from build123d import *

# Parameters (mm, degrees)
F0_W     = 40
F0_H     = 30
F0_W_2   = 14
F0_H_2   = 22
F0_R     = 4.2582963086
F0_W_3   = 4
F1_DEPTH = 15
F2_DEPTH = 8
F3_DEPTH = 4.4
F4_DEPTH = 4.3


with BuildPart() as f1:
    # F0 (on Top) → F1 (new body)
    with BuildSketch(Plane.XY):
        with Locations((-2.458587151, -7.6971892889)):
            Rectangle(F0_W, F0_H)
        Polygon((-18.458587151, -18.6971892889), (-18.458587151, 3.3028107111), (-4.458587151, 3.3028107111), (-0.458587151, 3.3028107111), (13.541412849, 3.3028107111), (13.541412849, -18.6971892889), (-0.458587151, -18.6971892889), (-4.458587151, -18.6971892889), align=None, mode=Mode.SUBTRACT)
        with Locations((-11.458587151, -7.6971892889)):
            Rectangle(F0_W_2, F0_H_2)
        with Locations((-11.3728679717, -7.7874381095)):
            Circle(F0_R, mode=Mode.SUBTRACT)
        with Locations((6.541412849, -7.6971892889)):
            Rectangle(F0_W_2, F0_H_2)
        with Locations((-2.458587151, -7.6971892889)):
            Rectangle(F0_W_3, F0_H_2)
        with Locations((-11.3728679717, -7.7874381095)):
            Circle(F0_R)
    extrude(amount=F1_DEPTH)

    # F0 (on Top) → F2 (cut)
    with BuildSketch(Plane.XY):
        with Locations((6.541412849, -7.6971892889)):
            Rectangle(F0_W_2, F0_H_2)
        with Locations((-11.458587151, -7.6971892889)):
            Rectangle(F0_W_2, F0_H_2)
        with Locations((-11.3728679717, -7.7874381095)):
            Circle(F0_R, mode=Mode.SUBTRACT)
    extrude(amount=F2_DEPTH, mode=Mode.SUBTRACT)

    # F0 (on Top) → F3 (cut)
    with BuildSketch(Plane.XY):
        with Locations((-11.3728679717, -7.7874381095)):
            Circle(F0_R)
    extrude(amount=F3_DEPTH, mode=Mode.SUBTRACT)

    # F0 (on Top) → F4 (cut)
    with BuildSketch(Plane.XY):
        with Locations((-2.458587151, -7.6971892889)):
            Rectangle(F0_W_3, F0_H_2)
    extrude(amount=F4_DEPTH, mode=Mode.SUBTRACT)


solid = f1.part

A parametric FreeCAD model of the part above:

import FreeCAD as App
import Part
import Sketcher

doc = App.newDocument("Part")
body = doc.addObject("PartDesign::Body", "Body")

sketch1 = body.newObject("Sketcher::SketchObject", "Sketch")
sketch1.AttachmentSupport = (doc.getObject("XY_Plane"), [""])
sketch1.MapMode = "FlatFace"
sketch1.addGeometry(Part.LineSegment(App.Vector(-22.458587, 7.302811, 0), App.Vector(-22.458587, -22.697189, 0)), False)
sketch1.addGeometry(Part.LineSegment(App.Vector(-22.458587, -22.697189, 0), App.Vector(17.541413, -22.697189, 0)), False)
sketch1.addGeometry(Part.LineSegment(App.Vector(17.541413, -22.697189, 0), App.Vector(17.541413, 7.302811, 0)), False)
sketch1.addGeometry(Part.LineSegment(App.Vector(17.541413, 7.302811, 0), App.Vector(-22.458587, 7.302811, 0)), False)
sketch1.addConstraint(Sketcher.Constraint("Coincident", 0, 2, 1, 1))
sketch1.addConstraint(Sketcher.Constraint("Coincident", 1, 2, 2, 1))
sketch1.addConstraint(Sketcher.Constraint("Coincident", 2, 2, 3, 1))
sketch1.addConstraint(Sketcher.Constraint("Coincident", 3, 2, 0, 1))
sketch1.addConstraint(Sketcher.Constraint("Vertical", 0))
sketch1.addConstraint(Sketcher.Constraint("Horizontal", 1))
sketch1.addConstraint(Sketcher.Constraint("Vertical", 2))
sketch1.addConstraint(Sketcher.Constraint("Horizontal", 3))
sketch1.addConstraint(Sketcher.Constraint("DistanceX", 1, 1, 1, 2, 40.0))
sketch1.addConstraint(Sketcher.Constraint("DistanceY", 0, 2, 0, 1, 30.0))
sketch1.addConstraint(Sketcher.Constraint("DistanceY", 0, 2, -1, 1, 22.697189))
sketch1.addConstraint(Sketcher.Constraint("DistanceX", 0, 2, -1, 1, 22.458587))
pad1 = body.newObject("PartDesign::Pad", "Pad")
pad1.Profile = sketch1
pad1.Length = 15

sketch2 = body.newObject("Sketcher::SketchObject", "Sketch001")
sketch2.AttachmentSupport = (doc.getObject("XY_Plane"), [""])
sketch2.MapMode = "FlatFace"
sketch2.addGeometry(Part.LineSegment(App.Vector(-0.458587, 3.302811, 0), App.Vector(-0.458587, -18.697189, 0)), False)
sketch2.addGeometry(Part.LineSegment(App.Vector(-0.458587, -18.697189, 0), App.Vector(13.541413, -18.697189, 0)), False)
sketch2.addGeometry(Part.LineSegment(App.Vector(13.541413, -18.697189, 0), App.Vector(13.541413, 3.302811, 0)), False)
sketch2.addGeometry(Part.LineSegment(App.Vector(13.541413, 3.302811, 0), App.Vector(-0.458587, 3.302811, 0)), False)
sketch2.addGeometry(Part.LineSegment(App.Vector(-18.458587, 3.302811, 0), App.Vector(-18.458587, -18.697189, 0)), False)
sketch2.addGeometry(Part.LineSegment(App.Vector(-18.458587, -18.697189, 0), App.Vector(-4.458587, -18.697189, 0)), False)
sketch2.addGeometry(Part.LineSegment(App.Vector(-4.458587, -18.697189, 0), App.Vector(-4.458587, 3.302811, 0)), False)
sketch2.addGeometry(Part.LineSegment(App.Vector(-4.458587, 3.302811, 0), App.Vector(-18.458587, 3.302811, 0)), False)
sketch2.addGeometry(Part.Circle(App.Vector(-11.372868, -7.787438, 0), App.Vector(0, 0, 1), 4.258296), False)
sketch2.addConstraint(Sketcher.Constraint("Coincident", 0, 2, 1, 1))
sketch2.addConstraint(Sketcher.Constraint("Coincident", 1, 2, 2, 1))
sketch2.addConstraint(Sketcher.Constraint("Coincident", 2, 2, 3, 1))
sketch2.addConstraint(Sketcher.Constraint("Coincident", 3, 2, 0, 1))
sketch2.addConstraint(Sketcher.Constraint("Coincident", 4, 2, 5, 1))
sketch2.addConstraint(Sketcher.Constraint("Coincident", 5, 2, 6, 1))
sketch2.addConstraint(Sketcher.Constraint("Coincident", 6, 2, 7, 1))
sketch2.addConstraint(Sketcher.Constraint("Coincident", 7, 2, 4, 1))
sketch2.addConstraint(Sketcher.Constraint("Vertical", 0))
sketch2.addConstraint(Sketcher.Constraint("Horizontal", 1))
sketch2.addConstraint(Sketcher.Constraint("Vertical", 2))
sketch2.addConstraint(Sketcher.Constraint("Horizontal", 3))
sketch2.addConstraint(Sketcher.Constraint("Vertical", 4))
sketch2.addConstraint(Sketcher.Constraint("Horizontal", 5))
sketch2.addConstraint(Sketcher.Constraint("Vertical", 6))
sketch2.addConstraint(Sketcher.Constraint("Horizontal", 7))
sketch2.addConstraint(Sketcher.Constraint("Horizontal", 1, 2, 4, 2))
sketch2.addConstraint(Sketcher.Constraint("Horizontal", 3, 2, 6, 2))
sketch2.addConstraint(Sketcher.Constraint("Equal", 3, 5))
sketch2.addConstraint(Sketcher.Constraint("DistanceX", 1, 1, 1, 2, 14.0))
sketch2.addConstraint(Sketcher.Constraint("DistanceY", 0, 2, 0, 1, 22.0))
sketch2.addConstraint(Sketcher.Constraint("DistanceX", 4, 2, 0, 2, 18.0))
sketch2.addConstraint(Sketcher.Constraint("Diameter", 8, 8.516593))
sketch2.addConstraint(Sketcher.Constraint("DistanceY", 8, 3, -1, 1, 7.787438))
sketch2.addConstraint(Sketcher.Constraint("DistanceY", 0, 2, -1, 1, 18.697189))
sketch2.addConstraint(Sketcher.Constraint("DistanceX", 8, 3, 0, 2, 10.914281))
sketch2.addConstraint(Sketcher.Constraint("DistanceX", 8, 3, -1, 1, 11.372868))
pocket1 = body.newObject("PartDesign::Pocket", "Pocket")
pocket1.Profile = sketch2
pocket1.Length = 8
pocket1.Reversed = True

sketch3 = body.newObject("Sketcher::SketchObject", "Sketch002")
sketch3.AttachmentSupport = (doc.getObject("XY_Plane"), [""])
sketch3.MapMode = "FlatFace"
sketch3.addGeometry(Part.Circle(App.Vector(-11.372868, -7.787438, 0), App.Vector(0, 0, 1), 4.258296), False)
sketch3.addConstraint(Sketcher.Constraint("Diameter", 0, 8.516593))
sketch3.addConstraint(Sketcher.Constraint("DistanceY", 0, 3, -1, 1, 7.787438))
sketch3.addConstraint(Sketcher.Constraint("DistanceX", 0, 3, -1, 1, 11.372868))
pocket2 = body.newObject("PartDesign::Pocket", "Pocket001")
pocket2.Profile = sketch3
pocket2.Length = 4.4
pocket2.Reversed = True

sketch4 = body.newObject("Sketcher::SketchObject", "Sketch003")
sketch4.AttachmentSupport = (doc.getObject("XY_Plane"), [""])
sketch4.MapMode = "FlatFace"
sketch4.addGeometry(Part.LineSegment(App.Vector(-4.458587, 3.302811, 0), App.Vector(-4.458587, -18.697189, 0)), False)
sketch4.addGeometry(Part.LineSegment(App.Vector(-4.458587, -18.697189, 0), App.Vector(-0.458587, -18.697189, 0)), False)
sketch4.addGeometry(Part.LineSegment(App.Vector(-0.458587, -18.697189, 0), App.Vector(-0.458587, 3.302811, 0)), False)
sketch4.addGeometry(Part.LineSegment(App.Vector(-0.458587, 3.302811, 0), App.Vector(-4.458587, 3.302811, 0)), False)
sketch4.addConstraint(Sketcher.Constraint("Coincident", 0, 2, 1, 1))
sketch4.addConstraint(Sketcher.Constraint("Coincident", 1, 2, 2, 1))
sketch4.addConstraint(Sketcher.Constraint("Coincident", 2, 2, 3, 1))
sketch4.addConstraint(Sketcher.Constraint("Coincident", 3, 2, 0, 1))
sketch4.addConstraint(Sketcher.Constraint("Vertical", 0))
sketch4.addConstraint(Sketcher.Constraint("Horizontal", 1))
sketch4.addConstraint(Sketcher.Constraint("Vertical", 2))
sketch4.addConstraint(Sketcher.Constraint("Horizontal", 3))
sketch4.addConstraint(Sketcher.Constraint("DistanceX", 1, 1, 1, 2, 4.0))
sketch4.addConstraint(Sketcher.Constraint("DistanceY", 0, 2, 0, 1, 22.0))
sketch4.addConstraint(Sketcher.Constraint("DistanceY", 0, 2, -1, 1, 18.697189))
sketch4.addConstraint(Sketcher.Constraint("DistanceX", 0, 2, -1, 1, 4.458587))
pocket3 = body.newObject("PartDesign::Pocket", "Pocket002")
pocket3.Profile = sketch4
pocket3.Length = 4.3
pocket3.Reversed = True

doc.recompute()
